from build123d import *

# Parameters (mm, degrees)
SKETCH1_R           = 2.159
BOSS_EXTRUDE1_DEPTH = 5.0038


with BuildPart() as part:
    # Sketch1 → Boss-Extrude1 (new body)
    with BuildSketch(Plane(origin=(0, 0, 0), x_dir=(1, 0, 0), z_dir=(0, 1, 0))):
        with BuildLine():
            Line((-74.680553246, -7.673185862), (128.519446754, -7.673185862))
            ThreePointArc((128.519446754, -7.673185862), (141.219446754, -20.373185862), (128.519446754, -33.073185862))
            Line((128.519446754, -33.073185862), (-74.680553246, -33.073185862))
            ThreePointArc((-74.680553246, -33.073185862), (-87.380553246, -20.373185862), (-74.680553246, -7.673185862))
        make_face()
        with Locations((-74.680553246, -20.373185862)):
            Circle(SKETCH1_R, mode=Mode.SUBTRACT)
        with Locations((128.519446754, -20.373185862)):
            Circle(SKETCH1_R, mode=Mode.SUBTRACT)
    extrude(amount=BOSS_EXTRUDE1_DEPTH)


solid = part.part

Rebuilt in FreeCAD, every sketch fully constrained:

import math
import FreeCAD as App
import Part
import Sketcher
from FreeCAD import Vector
Q = App.Units.Quantity

doc = App.newDocument("Part")
params = doc.addObject("Spreadsheet::Sheet", "Params")
for row, (alias, value) in enumerate([
    ("sketch1_radius", "0.5 in"),
    ("sketch1_diameter", "0.17 in"),
    ("sketch1_width", "8 in"),
    ("pad1_length", "0.197 in"),
], start=1):
    params.set(f"A{row}", alias)
    params.set(f"B{row}", "=" + value)
    params.setAlias(f"B{row}", alias)

body = doc.addObject("PartDesign::Body", "Body")

sketch1 = body.newObject("Sketcher::SketchObject", "Sketch")
sketch1.AttachmentSupport = (doc.getObject("XZ_Plane"), [""])
sketch1.MapMode = "FlatFace"
sketch1.addGeometry(Part.LineSegment(Vector(128.5, 7.7, 0), Vector(-74.7, 7.7, 0)), False)
sketch1.addGeometry(Part.ArcOfCircle(Part.Circle(Vector(-74.7, 20.4, 0), Vector(0, 0, 1), 12.7), math.radians(90), math.radians(270)), False)
sketch1.addGeometry(Part.LineSegment(Vector(-74.7, 33.1, 0), Vector(128.5, 33.1, 0)), False)
sketch1.addGeometry(Part.ArcOfCircle(Part.Circle(Vector(128.5, 20.4, 0), Vector(0, 0, 1), 12.7), math.radians(-90), math.radians(90)), False)
sketch1.addGeometry(Part.Circle(Vector(128.5, 20.4, 0), Vector(0, 0, 1), 2.2), False)
sketch1.addGeometry(Part.Circle(Vector(-74.7, 20.4, 0), Vector(0, 0, 1), 2.2), False)
sketch1.addConstraint(Sketcher.Constraint("Tangent", 0, 2, 1, 2))
sketch1.addConstraint(Sketcher.Constraint("Tangent", 1, 1, 2, 1))
sketch1.addConstraint(Sketcher.Constraint("Tangent", 2, 2, 3, 2))
sketch1.addConstraint(Sketcher.Constraint("Tangent", 3, 1, 0, 1))
sketch1.addConstraint(Sketcher.Constraint("Horizontal", 0))
sketch1.addConstraint(Sketcher.Constraint("Horizontal", 2))
sketch1.addConstraint(Sketcher.Constraint("Coincident", 4, 3, 3, 3))
sketch1.addConstraint(Sketcher.Constraint("Coincident", 5, 3, 1, 3))
sketch1.addConstraint(Sketcher.Constraint("Equal", 4, 5))
sketch1.addConstraint(Sketcher.Constraint("Radius", 1, Q("0.5 in")))
sketch1.addConstraint(Sketcher.Constraint("Diameter", 4, Q("0.17 in")))
sketch1.addConstraint(Sketcher.Constraint("DistanceX", 0, 2, 0, 1, Q("8 in")))
sketch1.addConstraint(Sketcher.Constraint("DistanceX", 1, 3, -1, 1, Q("74.680553 mm")))
sketch1.addConstraint(Sketcher.Constraint("DistanceY", -1, 1, 1, 3, Q("20.373186 mm")))
sketch1.setExpression("Constraints[9]", "Params.sketch1_radius")
sketch1.setExpression("Constraints[10]", "Params.sketch1_diameter")
sketch1.setExpression("Constraints[11]", "Params.sketch1_width")
pad1 = body.newObject("PartDesign::Pad", "Pad")
pad1.Profile = sketch1
pad1.setExpression("Length", "Params.pad1_length")
pad1.Reversed = True

doc.recompute()
